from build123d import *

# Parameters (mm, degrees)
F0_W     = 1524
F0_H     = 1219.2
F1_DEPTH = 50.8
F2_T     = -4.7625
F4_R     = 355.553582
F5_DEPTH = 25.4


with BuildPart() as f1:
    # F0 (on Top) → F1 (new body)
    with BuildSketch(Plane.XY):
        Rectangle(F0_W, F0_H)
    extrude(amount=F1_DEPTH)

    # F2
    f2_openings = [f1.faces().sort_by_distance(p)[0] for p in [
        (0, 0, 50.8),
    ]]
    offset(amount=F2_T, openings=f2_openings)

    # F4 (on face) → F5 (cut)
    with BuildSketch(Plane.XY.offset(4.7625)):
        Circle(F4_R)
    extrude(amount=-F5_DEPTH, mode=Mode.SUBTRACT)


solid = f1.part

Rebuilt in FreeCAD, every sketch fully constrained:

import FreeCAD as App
import Part
import Sketcher

V = App.Vector
Q = App.Units.Quantity


def faces_at(feature, points):
    """Names of the faces that lie closest to the given points."""
    faces = feature.Shape.Faces
    near = lambda p: min(range(len(faces)), key=lambda i: faces[i].distToShape(Part.Vertex(*p))[0])
    return sorted({f"Face{near(p) + 1}" for p in points})


def add_polygon(sketch, points):
    """Adds a closed chain of lines whose ends are joined by coincident constraints."""
    first, n = sketch.GeometryCount, len(points)
    for a, b in zip(points, points[1:] + points[:1]):
        sketch.addGeometry(Part.LineSegment(App.Vector(*a, 0), App.Vector(*b, 0)), False)
    for i in range(n):
        sketch.addConstraint(Sketcher.Constraint("Coincident", first + i, 2, first + (i + 1) % n, 1))

doc = App.newDocument("Part")
body = doc.addObject("PartDesign::Body", "Body")

sketch1 = doc.addObject("Sketcher::SketchObject", "Sketch")
body.addObject(sketch1)
sketch1.AttachmentSupport = (doc.XY_Plane, [""])
sketch1.MapMode = "FlatFace"
add_polygon(sketch1, [(-762, 610), (-762, -610), (762, -610), (762, 610)])
sketch1.addConstraint(Sketcher.Constraint("Vertical", 0))
sketch1.addConstraint(Sketcher.Constraint("Horizontal", 1))
sketch1.addConstraint(Sketcher.Constraint("Vertical", 2))
sketch1.addConstraint(Sketcher.Constraint("Horizontal", 3))
sketch1.addConstraint(Sketcher.Constraint("Symmetric", 0, 2, 2, 2, -1, 1))
sketch1.addConstraint(Sketcher.Constraint("DistanceX", 1, 1, 1, 2, Q("60 in")))
sketch1.addConstraint(Sketcher.Constraint("DistanceY", 0, 2, 0, 1, Q("48 in")))
pad1 = doc.addObject("PartDesign::Pad", "Pad")
body.addObject(pad1)
pad1.Profile = sketch1
pad1.Length = Q("2 in")
doc.recompute()

thickness = doc.addObject("PartDesign::Thickness", "Thickness")
body.addObject(thickness)
thickness.Base = (pad1, faces_at(pad1, [(0, 0, 50.8)]))
thickness.Value = Q("0.1875 in")
thickness.Reversed = True
thickness.Join = "Arc"

sketch2 = doc.addObject("Sketcher::SketchObject", "Sketch001")
body.addObject(sketch2)
sketch2.AttachmentSupport = (doc.XY_Plane, [""])
sketch2.MapMode = "FlatFace"
sketch2.AttachmentOffset = App.Placement(V(0, 0, 0.1875 * 25.4), App.Rotation())
sketch2.addGeometry(Part.Circle(V(0, 0, 0), V(0, 0, 1), 356), False)
sketch2.addConstraint(Sketcher.Constraint("Coincident", 0, 3, -1, 1))
sketch2.addConstraint(Sketcher.Constraint("Diameter", 0, Q("711.107164 mm")))
pocket1 = doc.addObject("PartDesign::Pocket", "Pocket")
body.addObject(pocket1)
pocket1.Profile = sketch2
pocket1.Length = Q("1 in")

doc.recompute()
